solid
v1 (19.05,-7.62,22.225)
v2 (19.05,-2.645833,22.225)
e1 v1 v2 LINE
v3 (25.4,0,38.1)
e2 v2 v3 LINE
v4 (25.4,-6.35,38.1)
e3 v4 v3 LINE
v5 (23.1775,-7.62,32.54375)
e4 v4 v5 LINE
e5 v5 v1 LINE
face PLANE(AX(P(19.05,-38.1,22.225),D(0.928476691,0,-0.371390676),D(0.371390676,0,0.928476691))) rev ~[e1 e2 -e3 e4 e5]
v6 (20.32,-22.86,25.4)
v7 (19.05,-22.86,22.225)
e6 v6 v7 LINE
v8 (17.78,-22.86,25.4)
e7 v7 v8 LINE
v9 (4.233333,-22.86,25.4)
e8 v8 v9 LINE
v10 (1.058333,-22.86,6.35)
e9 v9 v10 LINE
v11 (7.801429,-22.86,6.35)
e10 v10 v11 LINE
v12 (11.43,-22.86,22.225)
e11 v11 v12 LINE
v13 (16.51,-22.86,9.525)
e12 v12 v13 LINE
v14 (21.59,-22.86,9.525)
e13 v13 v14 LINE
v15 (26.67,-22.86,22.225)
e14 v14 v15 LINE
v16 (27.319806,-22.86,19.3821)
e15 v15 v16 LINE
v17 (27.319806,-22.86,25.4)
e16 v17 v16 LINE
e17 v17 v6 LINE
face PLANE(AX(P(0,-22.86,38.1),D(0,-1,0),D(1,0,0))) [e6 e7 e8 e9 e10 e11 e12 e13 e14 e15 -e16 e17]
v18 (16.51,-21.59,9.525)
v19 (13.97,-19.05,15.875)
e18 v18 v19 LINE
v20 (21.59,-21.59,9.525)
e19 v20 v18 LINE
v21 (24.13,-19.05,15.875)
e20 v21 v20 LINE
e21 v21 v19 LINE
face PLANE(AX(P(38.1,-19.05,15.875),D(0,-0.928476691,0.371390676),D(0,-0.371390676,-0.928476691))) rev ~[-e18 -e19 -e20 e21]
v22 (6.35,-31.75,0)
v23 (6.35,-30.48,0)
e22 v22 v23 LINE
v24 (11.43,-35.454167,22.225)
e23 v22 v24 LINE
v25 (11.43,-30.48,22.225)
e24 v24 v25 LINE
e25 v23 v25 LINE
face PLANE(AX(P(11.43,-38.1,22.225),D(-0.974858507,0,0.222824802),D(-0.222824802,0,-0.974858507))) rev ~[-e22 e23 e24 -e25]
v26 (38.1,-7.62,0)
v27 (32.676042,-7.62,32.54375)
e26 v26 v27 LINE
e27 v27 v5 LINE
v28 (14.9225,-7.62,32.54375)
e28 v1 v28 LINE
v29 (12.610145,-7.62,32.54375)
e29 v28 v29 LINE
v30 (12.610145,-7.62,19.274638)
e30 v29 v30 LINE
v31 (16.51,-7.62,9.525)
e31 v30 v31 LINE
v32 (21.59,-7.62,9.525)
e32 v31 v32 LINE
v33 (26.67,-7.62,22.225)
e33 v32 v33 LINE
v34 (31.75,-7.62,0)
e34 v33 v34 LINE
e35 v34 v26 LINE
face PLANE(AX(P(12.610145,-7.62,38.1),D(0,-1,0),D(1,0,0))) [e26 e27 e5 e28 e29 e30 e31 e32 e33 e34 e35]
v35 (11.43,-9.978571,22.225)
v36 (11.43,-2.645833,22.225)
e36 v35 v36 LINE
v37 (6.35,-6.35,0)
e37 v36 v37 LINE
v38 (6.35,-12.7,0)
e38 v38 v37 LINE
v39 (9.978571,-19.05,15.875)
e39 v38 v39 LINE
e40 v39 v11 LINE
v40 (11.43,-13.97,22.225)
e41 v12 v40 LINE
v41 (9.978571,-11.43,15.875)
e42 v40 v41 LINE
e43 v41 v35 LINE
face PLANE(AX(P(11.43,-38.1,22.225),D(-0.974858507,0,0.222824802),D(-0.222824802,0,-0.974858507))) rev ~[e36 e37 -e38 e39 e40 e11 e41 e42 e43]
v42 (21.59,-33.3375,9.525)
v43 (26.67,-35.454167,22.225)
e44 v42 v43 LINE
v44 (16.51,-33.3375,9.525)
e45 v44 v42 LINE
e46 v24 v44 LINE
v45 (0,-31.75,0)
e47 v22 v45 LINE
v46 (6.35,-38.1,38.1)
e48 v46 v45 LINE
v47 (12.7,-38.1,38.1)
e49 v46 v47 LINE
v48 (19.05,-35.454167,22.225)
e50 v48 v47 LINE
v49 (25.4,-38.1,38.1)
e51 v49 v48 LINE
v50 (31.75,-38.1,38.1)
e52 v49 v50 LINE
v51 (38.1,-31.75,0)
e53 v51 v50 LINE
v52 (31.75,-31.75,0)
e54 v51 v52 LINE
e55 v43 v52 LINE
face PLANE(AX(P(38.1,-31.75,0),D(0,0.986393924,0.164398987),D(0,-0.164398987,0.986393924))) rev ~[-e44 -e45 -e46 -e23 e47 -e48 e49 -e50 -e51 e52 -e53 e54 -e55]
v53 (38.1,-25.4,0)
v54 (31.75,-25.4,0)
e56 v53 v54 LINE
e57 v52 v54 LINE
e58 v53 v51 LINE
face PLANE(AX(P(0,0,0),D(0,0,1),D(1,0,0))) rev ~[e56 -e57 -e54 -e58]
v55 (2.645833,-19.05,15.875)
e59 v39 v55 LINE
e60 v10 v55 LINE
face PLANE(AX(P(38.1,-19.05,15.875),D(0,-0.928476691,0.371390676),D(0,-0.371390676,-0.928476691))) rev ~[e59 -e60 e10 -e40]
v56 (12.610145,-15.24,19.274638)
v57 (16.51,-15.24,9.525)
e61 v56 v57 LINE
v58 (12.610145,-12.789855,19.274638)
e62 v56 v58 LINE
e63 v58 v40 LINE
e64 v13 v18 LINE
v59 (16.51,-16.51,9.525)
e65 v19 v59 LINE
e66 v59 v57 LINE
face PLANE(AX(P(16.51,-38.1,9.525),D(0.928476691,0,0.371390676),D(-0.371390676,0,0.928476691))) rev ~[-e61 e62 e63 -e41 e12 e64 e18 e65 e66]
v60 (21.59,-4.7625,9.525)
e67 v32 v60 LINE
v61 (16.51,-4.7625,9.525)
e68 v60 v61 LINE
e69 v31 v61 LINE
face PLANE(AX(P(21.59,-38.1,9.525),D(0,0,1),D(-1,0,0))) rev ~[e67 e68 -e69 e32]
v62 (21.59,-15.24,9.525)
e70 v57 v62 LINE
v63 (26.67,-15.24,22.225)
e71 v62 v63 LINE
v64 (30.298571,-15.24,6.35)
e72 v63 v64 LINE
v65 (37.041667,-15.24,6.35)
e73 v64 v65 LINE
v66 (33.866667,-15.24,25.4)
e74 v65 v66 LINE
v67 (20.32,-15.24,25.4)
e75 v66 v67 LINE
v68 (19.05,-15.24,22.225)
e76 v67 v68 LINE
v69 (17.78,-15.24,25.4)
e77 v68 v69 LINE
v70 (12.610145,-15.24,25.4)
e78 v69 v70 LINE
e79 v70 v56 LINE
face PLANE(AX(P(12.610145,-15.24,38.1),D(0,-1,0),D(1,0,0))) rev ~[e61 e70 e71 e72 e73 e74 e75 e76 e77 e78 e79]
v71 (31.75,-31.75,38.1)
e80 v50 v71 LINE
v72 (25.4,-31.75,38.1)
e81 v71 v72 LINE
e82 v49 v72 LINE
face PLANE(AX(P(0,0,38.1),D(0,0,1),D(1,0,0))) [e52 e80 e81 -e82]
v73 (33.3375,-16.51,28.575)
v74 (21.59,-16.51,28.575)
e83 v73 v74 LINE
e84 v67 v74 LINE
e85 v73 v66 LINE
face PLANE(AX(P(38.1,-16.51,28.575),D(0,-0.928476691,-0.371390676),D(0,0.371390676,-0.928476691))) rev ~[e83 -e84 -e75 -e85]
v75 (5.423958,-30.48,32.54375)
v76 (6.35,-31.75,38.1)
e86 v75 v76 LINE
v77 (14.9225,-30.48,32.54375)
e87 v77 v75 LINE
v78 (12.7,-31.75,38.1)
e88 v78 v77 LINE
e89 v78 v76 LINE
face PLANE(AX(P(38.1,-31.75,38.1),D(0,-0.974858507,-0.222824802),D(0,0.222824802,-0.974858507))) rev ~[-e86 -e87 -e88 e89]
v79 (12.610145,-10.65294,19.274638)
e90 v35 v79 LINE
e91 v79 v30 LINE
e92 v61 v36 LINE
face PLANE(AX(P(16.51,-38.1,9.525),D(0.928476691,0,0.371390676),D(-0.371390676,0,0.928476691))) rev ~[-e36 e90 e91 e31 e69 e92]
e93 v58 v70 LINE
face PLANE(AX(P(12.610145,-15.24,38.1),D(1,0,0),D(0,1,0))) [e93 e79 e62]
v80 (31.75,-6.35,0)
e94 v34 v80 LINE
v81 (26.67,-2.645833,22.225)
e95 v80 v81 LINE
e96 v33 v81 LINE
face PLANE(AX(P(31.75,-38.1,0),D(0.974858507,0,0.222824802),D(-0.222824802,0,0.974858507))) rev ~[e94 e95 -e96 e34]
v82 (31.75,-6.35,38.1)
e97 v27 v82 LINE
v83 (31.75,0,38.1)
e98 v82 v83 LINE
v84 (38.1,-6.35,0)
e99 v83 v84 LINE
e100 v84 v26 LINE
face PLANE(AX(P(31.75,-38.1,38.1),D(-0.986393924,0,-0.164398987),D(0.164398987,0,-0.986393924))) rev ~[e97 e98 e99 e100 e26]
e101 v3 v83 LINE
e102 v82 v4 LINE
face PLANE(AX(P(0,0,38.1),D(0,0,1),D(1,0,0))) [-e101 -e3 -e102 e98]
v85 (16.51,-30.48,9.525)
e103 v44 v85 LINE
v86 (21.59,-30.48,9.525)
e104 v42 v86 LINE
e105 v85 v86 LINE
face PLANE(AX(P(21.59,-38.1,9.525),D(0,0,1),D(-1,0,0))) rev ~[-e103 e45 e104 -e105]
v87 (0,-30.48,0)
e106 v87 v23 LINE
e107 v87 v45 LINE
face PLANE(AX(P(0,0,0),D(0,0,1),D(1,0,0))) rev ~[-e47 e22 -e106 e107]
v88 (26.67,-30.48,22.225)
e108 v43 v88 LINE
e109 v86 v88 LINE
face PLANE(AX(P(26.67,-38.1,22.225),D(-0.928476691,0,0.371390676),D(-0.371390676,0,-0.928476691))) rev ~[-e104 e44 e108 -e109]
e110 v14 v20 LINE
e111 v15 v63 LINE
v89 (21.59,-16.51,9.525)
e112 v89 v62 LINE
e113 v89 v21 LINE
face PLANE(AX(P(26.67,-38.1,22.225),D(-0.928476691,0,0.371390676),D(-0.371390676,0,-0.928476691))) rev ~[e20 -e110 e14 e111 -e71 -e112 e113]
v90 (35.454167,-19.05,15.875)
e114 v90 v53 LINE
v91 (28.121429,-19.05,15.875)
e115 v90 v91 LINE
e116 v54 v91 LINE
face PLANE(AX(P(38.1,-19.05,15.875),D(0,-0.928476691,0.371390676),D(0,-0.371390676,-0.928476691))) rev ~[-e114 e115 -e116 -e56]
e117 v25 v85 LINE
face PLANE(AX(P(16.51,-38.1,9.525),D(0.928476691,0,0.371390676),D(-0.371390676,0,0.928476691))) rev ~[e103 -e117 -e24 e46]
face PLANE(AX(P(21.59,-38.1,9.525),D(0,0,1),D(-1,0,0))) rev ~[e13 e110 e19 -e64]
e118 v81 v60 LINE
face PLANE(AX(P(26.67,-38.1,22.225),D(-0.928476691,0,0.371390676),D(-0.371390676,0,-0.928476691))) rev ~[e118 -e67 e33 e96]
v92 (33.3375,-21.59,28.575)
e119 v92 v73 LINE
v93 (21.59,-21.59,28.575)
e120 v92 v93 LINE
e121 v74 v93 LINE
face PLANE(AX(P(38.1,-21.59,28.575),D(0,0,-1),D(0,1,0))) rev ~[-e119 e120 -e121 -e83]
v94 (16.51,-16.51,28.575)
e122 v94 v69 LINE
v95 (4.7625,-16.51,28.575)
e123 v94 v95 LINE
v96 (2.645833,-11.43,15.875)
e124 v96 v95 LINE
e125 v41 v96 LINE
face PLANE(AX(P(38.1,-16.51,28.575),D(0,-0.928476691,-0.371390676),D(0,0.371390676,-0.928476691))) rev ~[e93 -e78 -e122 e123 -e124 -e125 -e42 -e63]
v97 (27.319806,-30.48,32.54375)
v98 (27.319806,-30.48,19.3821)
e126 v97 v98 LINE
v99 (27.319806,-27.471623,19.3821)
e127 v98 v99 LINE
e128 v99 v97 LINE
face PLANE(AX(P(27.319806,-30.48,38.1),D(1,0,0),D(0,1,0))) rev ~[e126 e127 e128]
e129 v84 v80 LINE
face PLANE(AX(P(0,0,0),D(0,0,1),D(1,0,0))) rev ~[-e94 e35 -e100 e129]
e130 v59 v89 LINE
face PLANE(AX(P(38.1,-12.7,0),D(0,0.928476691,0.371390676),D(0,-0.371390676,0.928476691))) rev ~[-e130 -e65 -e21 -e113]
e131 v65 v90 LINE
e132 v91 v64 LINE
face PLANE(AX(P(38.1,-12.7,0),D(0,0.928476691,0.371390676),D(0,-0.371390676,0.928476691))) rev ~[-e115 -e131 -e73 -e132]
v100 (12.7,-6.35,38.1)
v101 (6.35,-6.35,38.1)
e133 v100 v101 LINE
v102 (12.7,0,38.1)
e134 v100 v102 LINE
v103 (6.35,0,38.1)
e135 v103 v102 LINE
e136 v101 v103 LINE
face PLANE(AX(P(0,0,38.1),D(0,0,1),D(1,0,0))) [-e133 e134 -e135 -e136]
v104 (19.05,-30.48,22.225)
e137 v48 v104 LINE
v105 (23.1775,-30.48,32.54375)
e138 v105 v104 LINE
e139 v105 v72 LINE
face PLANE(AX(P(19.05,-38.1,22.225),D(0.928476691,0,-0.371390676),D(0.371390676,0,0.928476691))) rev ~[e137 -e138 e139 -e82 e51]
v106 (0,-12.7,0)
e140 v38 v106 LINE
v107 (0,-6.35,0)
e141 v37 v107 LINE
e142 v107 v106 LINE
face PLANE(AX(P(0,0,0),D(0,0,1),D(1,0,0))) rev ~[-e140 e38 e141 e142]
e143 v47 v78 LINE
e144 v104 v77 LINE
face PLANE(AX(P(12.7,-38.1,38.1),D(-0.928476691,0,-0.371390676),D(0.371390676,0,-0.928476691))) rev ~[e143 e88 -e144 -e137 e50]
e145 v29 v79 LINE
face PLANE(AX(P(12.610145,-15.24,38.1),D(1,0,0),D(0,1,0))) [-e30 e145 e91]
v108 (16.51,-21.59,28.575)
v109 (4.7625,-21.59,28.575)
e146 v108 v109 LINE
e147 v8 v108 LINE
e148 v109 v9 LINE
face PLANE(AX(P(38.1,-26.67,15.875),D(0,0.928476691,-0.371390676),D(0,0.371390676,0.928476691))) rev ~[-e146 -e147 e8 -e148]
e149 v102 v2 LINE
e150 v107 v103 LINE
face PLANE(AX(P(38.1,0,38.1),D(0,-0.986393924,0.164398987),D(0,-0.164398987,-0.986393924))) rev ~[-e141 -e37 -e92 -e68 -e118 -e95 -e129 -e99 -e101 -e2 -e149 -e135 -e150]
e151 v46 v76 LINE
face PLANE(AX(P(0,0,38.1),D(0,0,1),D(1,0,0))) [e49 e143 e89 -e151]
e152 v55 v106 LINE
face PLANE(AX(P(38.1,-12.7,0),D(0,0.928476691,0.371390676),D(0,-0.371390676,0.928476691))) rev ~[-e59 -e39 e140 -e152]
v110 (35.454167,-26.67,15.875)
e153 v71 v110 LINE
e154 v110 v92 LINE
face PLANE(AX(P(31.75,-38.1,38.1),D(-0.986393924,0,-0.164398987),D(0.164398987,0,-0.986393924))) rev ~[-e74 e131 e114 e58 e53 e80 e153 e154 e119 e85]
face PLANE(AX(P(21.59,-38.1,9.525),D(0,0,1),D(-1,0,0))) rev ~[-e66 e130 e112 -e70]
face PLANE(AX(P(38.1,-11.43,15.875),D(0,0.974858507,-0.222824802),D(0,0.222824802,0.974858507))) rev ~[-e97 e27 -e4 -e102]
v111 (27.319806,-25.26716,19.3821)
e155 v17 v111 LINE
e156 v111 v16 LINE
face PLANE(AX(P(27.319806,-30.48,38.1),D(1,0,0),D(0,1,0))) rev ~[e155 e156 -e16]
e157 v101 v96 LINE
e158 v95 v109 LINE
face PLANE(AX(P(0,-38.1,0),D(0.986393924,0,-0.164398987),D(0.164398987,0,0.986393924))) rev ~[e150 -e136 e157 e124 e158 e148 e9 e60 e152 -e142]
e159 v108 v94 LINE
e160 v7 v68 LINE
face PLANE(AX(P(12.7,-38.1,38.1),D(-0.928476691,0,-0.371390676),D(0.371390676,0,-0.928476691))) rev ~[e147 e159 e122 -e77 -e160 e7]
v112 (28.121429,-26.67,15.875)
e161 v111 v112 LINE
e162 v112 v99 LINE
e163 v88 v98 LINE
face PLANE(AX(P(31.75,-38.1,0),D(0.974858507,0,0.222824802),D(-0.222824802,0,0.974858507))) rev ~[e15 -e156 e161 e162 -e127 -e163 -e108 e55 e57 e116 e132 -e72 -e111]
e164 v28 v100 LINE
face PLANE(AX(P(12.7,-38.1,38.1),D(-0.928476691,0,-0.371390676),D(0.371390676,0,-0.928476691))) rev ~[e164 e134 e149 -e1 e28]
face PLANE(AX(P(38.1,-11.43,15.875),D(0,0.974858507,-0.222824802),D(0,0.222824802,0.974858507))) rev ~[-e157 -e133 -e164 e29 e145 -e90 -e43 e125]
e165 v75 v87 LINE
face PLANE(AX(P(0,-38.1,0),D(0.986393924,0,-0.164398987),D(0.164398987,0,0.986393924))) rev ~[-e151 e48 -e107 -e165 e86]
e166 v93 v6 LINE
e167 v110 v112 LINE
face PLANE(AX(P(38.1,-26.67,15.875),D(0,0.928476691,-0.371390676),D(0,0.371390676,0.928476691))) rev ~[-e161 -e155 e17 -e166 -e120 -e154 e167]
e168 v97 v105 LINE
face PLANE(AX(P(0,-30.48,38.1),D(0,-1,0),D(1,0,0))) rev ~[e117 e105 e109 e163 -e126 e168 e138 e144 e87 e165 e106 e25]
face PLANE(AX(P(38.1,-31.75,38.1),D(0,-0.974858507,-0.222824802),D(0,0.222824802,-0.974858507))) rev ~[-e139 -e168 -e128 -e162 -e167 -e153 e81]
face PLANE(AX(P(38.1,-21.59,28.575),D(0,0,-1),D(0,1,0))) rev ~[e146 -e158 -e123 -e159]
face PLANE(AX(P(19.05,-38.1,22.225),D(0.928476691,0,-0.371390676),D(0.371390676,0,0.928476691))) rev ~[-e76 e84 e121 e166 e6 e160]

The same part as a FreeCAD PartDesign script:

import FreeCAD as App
import Part
import Sketcher
from FreeCAD import Vector
Q = App.Units.Quantity


def add_polygon(sketch, points):
    """Adds a closed chain of lines whose ends are joined by coincident constraints."""
    first, n = sketch.GeometryCount, len(points)
    for a, b in zip(points, points[1:] + points[:1]):
        sketch.addGeometry(Part.LineSegment(App.Vector(*a, 0), App.Vector(*b, 0)), False)
    for i in range(n):
        sketch.addConstraint(Sketcher.Constraint("Coincident", first + i, 2, first + (i + 1) % n, 1))

doc = App.newDocument("Part")
body = doc.addObject("PartDesign::Body", "Body")

# Sketch on XZ plane
sketch1 = body.newObject("Sketcher::SketchObject", "Sketch")
sketch1.AttachmentSupport = (doc.getObject("XZ_Plane"), [""])
sketch1.MapMode = "FlatFace"
add_polygon(sketch1, [(0, 38), (0, 0), (38, 0), (38, 38)])  # lines 0-3
sketch1.addConstraint([
    Sketcher.Constraint("Vertical", 0),
    Sketcher.Constraint("Horizontal", 1),
    Sketcher.Constraint("Vertical", 2),
    Sketcher.Constraint("Horizontal", 3),
    Sketcher.Constraint("Coincident", 0, 2, -1, 1),
    Sketcher.Constraint("Equal", 3, 0),
    Sketcher.Constraint("DistanceX", 1, 1, 1, 2, Q("1.5 in")),
])
pad1 = body.newObject("PartDesign::Pad", "Pad")
pad1.Profile = sketch1
pad1.Length = Q("1.5 in")

# Sketch on YZ plane
sketch2 = body.newObject("Sketcher::SketchObject", "Sketch001")
sketch2.AttachmentSupport = (doc.getObject("YZ_Plane"), [""])
sketch2.MapMode = "FlatFace"
sketch2.AttachmentOffset = App.Placement(Vector(0, 0, 1.5 * 25.4), App.Rotation())
add_polygon(sketch2, [(-11, 16), (-6, 38), (-32, 38), (-27, 16), (-22, 29), (-17, 29)])  # lines 0-5
add_polygon(sketch2, [(-25, 0), (-13, 0), (-19, 16)])  # lines 6-8
add_polygon(sketch2, [(-38, 0), (-32, 0), (-38, 38)])  # lines 9-11
add_polygon(sketch2, [(-6, 0), (0, 0), (0, 38)])  # lines 12-14
sketch2.addConstraint([
    Sketcher.Constraint("Horizontal", 1),
    Sketcher.Constraint("Horizontal", 4),
    Sketcher.Constraint("Horizontal", 6),
    Sketcher.Constraint("Horizontal", 9),
    Sketcher.Constraint("Vertical", 11),
    Sketcher.Constraint("Horizontal", 12),
    Sketcher.Constraint("Vertical", 13),
    Sketcher.Constraint("Coincident", 12, 2, -1, 1),
    Sketcher.Constraint("PointOnObject", 6, 2, -1),
    Sketcher.Constraint("PointOnObject", 9, 2, -1),
    Sketcher.Constraint("Parallel", 5, 7),
    Sketcher.Constraint("Parallel", 3, 8),
    Sketcher.Constraint("Horizontal", 2, 2, 5, 2),
    Sketcher.Constraint("Horizontal", 5, 2, 7, 2),
    Sketcher.Constraint("Horizontal", 1, 2, 10, 2),
    Sketcher.Constraint("Horizontal", 10, 2, 13, 2),
    Sketcher.Constraint("Vertical", 1, 2, 9, 2),
    Sketcher.Constraint("Vertical", 0, 2, 14, 2),
    Sketcher.Constraint("Equal", 9, 12),
    Sketcher.Constraint("Equal", 0, 2),
    Sketcher.Constraint("Equal", 3, 5),
    Sketcher.Constraint("DistanceX", 1, 2, 1, 1, Q("1 in")),
    Sketcher.Constraint("DistanceX", 4, 1, 4, 2, Q("0.2 in")),
    Sketcher.Constraint("DistanceX", 6, 1, 6, 2, Q("0.5 in")),
    Sketcher.Constraint("DistanceY", 11, 2, 11, 1, Q("1.5 in")),
    Sketcher.Constraint("DistanceX", 8, 2, -1, 1, Q("1 in")),
    Sketcher.Constraint("DistanceX", 11, 2, 6, 2, Q("1 in")),
    Sketcher.Constraint("DistanceX", 1, 2, 2, 2, Q("0.2 in")),
    Sketcher.Constraint("DistanceY", 2, 2, 3, 2, Q("0.5 in")),
])
pocket1 = body.newObject("PartDesign::Pocket", "Pocket")
pocket1.Profile = sketch2
pocket1.Length = Q("1.5 in")

# Sketch on XZ plane
sketch3 = body.newObject("Sketcher::SketchObject", "Sketch002")
sketch3.AttachmentSupport = (doc.getObject("XZ_Plane"), [""])
sketch3.MapMode = "FlatFace"
sketch3.AttachmentOffset = App.Placement(Vector(0, 0, 1.5 * 25.4), App.Rotation())
add_polygon(sketch3, [(25, 38), (13, 38), (19, 22)])  # lines 0-2
add_polygon(sketch3, [(11, 22), (6, 0), (32, 0), (27, 22), (22, 10), (17, 10)])  # lines 3-8
add_polygon(sketch3, [(0, 38), (0, 0), (6, 38)])  # lines 9-11
add_polygon(sketch3, [(32, 38), (38, 0), (38, 38)])  # lines 12-14
sketch3.addConstraint([
    Sketcher.Constraint("Horizontal", 0),
    Sketcher.Constraint("Horizontal", 4),
    Sketcher.Constraint("Horizontal", 7),
    Sketcher.Constraint("Vertical", 9),
    Sketcher.Constraint("Horizontal", 11),
    Sketcher.Constraint("Vertical", 13),
    Sketcher.Constraint("Horizontal", 14),
    Sketcher.Constraint("Coincident", 9, 2, -1, 1),
    Sketcher.Constraint("PointOnObject", 3, 2, -1),
    Sketcher.Constraint("PointOnObject", 12, 2, -1),
    Sketcher.Constraint("Parallel", 2, 6),
    Sketcher.Constraint("Parallel", 1, 8),
    Sketcher.Constraint("Horizontal", 1, 2, 5, 2),
    Sketcher.Constraint("Horizontal", 5, 2, 8, 2),
    Sketcher.Constraint("Horizontal", 2, 2, 10, 2),
    Sketcher.Constraint("Horizontal", 11, 2, 13, 2),
    Sketcher.Constraint("Vertical", 3, 2, 10, 2),
    Sketcher.Constraint("Vertical", 4, 2, 14, 2),
    Sketcher.Constraint("Equal", 11, 14),
    Sketcher.Constraint("Equal", 1, 2),
    Sketcher.Constraint("Equal", 3, 5),
    Sketcher.Constraint("DistanceX", 4, 1, 4, 2, Q("1 in")),
    Sketcher.Constraint("DistanceX", 0, 2, 0, 1, Q("0.5 in")),
    Sketcher.Constraint("DistanceX", 7, 2, 7, 1, Q("0.2 in")),
    Sketcher.Constraint("DistanceY", 9, 2, 9, 1, Q("1.5 in")),
    Sketcher.Constraint("DistanceX", -1, 1, 2, 2, Q("1 in")),
    Sketcher.Constraint("DistanceX", 0, 2, 13, 2, Q("1 in")),
    Sketcher.Constraint("DistanceX", 1, 2, 5, 2, Q("0.3 in")),
    Sketcher.Constraint("DistanceY", 6, 2, 1, 2, Q("0.5 in")),
])
pocket2 = body.newObject("PartDesign::Pocket", "Pocket001")
pocket2.Profile = sketch3
pocket2.Length = Q("1.5 in")

# Sketch on XY plane
sketch4 = body.newObject("Sketcher::SketchObject", "Sketch003")
sketch4.AttachmentSupport = (doc.getObject("XY_Plane"), [""])
sketch4.MapMode = "FlatFace"
sketch4.AttachmentOffset = App.Placement(Vector(0, 0, 1.5 * 25.4), App.Rotation())
add_polygon(sketch4, [(13, -8), (13, -15), (38, -15), (38, -8)])  # lines 0-3
add_polygon(sketch4, [(0, -23), (0, -30), (27, -30), (27, -23)])  # lines 4-7
sketch4.addConstraint([
    Sketcher.Constraint("Vertical", 0),
    Sketcher.Constraint("Horizontal", 1),
    Sketcher.Constraint("Vertical", 2),
    Sketcher.Constraint("Horizontal", 3),
    Sketcher.Constraint("Vertical", 4),
    Sketcher.Constraint("Horizontal", 5),
    Sketcher.Constraint("Vertical", 6),
    Sketcher.Constraint("Horizontal", 7),
    Sketcher.Constraint("PointOnObject", 4, 2, -2),
    Sketcher.Constraint("Equal", 2, 4),
    Sketcher.Constraint("DistanceY", 0, 2, 0, 1, Q("0.3 in")),
    Sketcher.Constraint("DistanceY", 0, 2, -1, 1, Q("0.6 in")),
    Sketcher.Constraint("DistanceX", -1, 1, 1, 2, Q("1.5 in")),
    Sketcher.Constraint("DistanceY", 4, 2, -1, 1, Q("1.2 in")),
    Sketcher.Constraint("DistanceX", 1, 1, 1, 2, Q("25.489855 mm")),
    Sketcher.Constraint("DistanceX", 5, 1, 5, 2, Q("27.319806 mm")),
])
pocket3 = body.newObject("PartDesign::Pocket", "Pocket002")
pocket3.Profile = sketch4
pocket3.Length = Q("1.5 in")

doc.recompute()
